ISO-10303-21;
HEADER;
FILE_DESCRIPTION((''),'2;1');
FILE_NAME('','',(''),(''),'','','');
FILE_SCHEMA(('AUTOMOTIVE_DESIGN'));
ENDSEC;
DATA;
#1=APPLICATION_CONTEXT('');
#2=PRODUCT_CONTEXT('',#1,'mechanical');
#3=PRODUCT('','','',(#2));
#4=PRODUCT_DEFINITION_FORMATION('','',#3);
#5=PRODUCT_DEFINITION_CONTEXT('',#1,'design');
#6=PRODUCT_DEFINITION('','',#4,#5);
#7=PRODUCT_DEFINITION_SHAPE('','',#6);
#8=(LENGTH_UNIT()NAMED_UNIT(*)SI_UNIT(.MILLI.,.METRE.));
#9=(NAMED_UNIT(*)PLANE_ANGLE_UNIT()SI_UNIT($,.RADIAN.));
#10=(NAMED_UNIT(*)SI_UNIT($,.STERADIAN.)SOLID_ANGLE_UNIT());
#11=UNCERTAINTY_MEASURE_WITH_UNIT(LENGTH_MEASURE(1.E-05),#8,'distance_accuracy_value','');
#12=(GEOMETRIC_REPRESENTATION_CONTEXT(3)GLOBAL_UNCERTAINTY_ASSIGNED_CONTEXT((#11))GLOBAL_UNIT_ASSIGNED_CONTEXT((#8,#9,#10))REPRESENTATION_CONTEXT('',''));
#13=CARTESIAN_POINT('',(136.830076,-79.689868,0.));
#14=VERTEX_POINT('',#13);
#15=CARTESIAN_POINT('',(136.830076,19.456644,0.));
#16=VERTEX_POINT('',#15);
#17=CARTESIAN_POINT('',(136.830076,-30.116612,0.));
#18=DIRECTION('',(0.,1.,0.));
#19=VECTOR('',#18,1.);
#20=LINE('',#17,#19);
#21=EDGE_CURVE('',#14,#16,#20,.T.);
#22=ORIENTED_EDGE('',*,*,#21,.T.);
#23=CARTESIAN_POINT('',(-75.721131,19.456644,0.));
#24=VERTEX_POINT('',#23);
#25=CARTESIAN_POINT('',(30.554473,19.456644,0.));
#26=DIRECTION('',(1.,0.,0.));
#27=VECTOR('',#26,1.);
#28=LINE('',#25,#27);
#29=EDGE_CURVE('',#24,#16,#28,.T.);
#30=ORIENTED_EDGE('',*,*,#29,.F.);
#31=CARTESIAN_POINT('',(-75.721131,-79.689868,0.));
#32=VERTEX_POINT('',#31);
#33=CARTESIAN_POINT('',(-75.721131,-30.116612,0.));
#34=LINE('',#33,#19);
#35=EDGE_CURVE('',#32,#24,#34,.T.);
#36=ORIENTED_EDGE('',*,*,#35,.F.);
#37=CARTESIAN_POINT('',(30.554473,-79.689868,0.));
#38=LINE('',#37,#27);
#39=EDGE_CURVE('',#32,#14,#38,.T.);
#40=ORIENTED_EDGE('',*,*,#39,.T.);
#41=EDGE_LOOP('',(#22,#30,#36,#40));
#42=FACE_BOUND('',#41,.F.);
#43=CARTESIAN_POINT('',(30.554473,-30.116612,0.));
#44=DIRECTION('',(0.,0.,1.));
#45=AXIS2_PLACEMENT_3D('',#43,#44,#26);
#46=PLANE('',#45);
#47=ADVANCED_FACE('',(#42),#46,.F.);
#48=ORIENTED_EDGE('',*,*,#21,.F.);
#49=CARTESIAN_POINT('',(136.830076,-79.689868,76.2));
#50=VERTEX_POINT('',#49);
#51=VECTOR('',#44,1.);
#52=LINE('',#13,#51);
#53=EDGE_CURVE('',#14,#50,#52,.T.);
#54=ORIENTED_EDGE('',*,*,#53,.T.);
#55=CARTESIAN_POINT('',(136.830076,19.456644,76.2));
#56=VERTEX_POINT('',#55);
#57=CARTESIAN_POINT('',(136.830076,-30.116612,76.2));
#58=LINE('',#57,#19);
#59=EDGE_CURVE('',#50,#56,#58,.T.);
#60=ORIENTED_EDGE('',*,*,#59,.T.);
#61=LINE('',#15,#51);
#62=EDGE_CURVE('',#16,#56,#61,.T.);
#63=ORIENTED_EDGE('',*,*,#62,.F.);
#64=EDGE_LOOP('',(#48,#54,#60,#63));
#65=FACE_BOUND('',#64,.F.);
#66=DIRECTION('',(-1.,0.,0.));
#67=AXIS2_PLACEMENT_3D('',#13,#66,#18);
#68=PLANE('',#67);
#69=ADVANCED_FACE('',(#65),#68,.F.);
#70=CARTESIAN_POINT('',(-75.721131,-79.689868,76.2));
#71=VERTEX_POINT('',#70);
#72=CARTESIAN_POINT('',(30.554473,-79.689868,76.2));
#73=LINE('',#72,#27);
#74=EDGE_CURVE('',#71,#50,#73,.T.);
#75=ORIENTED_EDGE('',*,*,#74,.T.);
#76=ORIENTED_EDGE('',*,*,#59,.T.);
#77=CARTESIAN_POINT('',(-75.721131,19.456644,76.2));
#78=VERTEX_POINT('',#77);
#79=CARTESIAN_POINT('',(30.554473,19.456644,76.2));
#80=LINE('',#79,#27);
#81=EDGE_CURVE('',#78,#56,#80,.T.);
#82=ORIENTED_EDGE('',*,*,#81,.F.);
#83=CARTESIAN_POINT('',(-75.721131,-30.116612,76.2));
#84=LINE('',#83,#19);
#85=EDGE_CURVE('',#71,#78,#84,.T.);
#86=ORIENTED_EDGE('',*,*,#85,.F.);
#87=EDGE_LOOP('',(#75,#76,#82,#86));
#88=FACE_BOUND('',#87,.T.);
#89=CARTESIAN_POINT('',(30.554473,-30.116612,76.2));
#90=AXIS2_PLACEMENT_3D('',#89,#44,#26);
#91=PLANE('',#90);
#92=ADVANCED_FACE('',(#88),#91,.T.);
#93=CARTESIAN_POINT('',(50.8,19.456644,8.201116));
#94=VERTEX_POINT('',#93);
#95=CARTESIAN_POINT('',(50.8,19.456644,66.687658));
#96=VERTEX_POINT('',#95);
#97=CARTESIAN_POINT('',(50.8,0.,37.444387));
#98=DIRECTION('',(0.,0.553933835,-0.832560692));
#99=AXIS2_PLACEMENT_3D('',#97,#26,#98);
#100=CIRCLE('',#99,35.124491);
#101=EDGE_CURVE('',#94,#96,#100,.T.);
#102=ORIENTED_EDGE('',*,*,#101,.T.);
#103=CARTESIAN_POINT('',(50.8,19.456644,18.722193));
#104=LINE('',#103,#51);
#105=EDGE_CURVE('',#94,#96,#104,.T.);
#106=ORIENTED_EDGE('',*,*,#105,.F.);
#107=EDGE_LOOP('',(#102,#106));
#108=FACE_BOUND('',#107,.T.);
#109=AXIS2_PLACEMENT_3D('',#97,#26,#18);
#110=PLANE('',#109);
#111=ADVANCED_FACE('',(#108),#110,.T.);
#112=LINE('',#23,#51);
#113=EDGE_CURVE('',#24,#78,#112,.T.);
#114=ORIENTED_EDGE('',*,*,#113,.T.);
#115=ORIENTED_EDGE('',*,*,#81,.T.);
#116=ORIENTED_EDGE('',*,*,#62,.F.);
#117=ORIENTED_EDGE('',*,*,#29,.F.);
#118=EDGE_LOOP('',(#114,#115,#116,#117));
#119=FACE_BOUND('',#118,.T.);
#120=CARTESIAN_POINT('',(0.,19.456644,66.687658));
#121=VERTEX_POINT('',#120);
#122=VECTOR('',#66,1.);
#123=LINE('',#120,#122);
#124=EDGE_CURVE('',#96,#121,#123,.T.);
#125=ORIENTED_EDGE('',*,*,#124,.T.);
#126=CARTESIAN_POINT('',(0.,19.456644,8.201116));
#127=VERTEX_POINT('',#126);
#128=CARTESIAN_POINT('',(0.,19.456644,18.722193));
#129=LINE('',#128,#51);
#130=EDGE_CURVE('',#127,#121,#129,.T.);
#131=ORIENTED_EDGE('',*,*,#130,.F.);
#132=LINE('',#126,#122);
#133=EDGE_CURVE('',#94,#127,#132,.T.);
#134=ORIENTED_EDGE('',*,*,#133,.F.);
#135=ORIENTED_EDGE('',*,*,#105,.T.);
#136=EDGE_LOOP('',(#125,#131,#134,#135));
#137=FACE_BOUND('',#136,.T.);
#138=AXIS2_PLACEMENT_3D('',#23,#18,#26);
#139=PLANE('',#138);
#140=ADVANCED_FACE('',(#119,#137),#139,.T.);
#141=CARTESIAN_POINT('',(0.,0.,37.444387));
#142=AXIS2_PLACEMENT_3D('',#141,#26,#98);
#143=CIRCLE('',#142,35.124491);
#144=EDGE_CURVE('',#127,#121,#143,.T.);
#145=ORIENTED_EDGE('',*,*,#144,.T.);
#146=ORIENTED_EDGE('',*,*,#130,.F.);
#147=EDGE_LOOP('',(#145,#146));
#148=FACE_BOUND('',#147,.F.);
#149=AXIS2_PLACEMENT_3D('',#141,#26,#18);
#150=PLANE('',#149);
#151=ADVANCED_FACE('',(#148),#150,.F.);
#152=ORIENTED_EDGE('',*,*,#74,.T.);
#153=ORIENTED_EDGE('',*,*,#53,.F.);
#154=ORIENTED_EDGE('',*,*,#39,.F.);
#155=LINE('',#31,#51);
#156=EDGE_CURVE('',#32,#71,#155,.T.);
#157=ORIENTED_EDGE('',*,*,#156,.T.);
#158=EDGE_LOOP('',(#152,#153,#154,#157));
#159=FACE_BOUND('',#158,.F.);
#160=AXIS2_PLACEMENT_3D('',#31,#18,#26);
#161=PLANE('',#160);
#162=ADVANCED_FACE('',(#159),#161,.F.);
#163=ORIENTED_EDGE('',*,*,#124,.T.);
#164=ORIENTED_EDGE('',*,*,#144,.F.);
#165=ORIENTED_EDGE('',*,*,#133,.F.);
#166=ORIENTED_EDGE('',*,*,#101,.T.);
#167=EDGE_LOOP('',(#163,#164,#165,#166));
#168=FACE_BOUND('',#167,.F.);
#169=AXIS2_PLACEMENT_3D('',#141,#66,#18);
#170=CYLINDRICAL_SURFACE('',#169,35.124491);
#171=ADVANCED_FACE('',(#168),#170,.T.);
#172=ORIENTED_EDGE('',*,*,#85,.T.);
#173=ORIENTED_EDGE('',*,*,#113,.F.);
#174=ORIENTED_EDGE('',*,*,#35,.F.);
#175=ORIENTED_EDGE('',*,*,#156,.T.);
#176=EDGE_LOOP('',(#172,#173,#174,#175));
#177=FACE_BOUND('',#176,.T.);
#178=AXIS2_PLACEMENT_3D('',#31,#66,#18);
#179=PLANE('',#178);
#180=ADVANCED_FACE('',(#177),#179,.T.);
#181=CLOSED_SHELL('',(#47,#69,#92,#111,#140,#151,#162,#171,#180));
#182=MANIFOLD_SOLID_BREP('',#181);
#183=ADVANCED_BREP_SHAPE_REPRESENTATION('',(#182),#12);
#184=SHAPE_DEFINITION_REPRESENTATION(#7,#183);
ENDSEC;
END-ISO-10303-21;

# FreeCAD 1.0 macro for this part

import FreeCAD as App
import Part
import Sketcher
Q = App.Units.Quantity

doc = App.newDocument("Part")
body = doc.addObject("PartDesign::Body", "Body")

# Sketch on YZ plane
sketch1 = body.newObject("Sketcher::SketchObject", "Sketch")
sketch1.AttachmentSupport = (doc.getObject("YZ_Plane"), [""])
sketch1.MapMode = "FlatFace"
sketch1.addGeometry(Part.Circle(App.Vector(0, 37, 0), App.Vector(0, 0, 1), 35), False)
sketch1.addConstraint([
    Sketcher.Constraint("PointOnObject", 0, 3, -2),
    Sketcher.Constraint("Diameter", 0, 70.248982),
    Sketcher.Constraint("DistanceY", -1, 1, 0, 3, 37.444387),
])
pad1 = body.newObject("PartDesign::Pad", "Pad")
pad1.Profile = sketch1
pad1.Length = Q("2 in")

# Sketch on XY plane
sketch2 = body.newObject("Sketcher::SketchObject", "Sketch001")
sketch2.AttachmentSupport = (doc.getObject("XY_Plane"), [""])
sketch2.MapMode = "FlatFace"
sketch2.addGeometry([
    Part.LineSegment(App.Vector(-76, 19, 0), App.Vector(-76, -80, 0)),
    Part.LineSegment(App.Vector(-76, -80, 0), App.Vector(137, -80, 0)),
    Part.LineSegment(App.Vector(137, -80, 0), App.Vector(137, 19, 0)),
    Part.LineSegment(App.Vector(137, 19, 0), App.Vector(-76, 19, 0)),
], False)
sketch2.addConstraint([
    Sketcher.Constraint("Coincident", 0, 2, 1, 1),
    Sketcher.Constraint("Coincident", 1, 2, 2, 1),
    Sketcher.Constraint("Coincident", 2, 2, 3, 1),
    Sketcher.Constraint("Coincident", 3, 2, 0, 1),
    Sketcher.Constraint("Vertical", 0),
    Sketcher.Constraint("Horizontal", 1),
    Sketcher.Constraint("Vertical", 2),
    Sketcher.Constraint("Horizontal", 3),
    Sketcher.Constraint("DistanceY", 0, 2, 0, 1, 99.146512),
    Sketcher.Constraint("DistanceX", 1, 1, 1, 2, 212.551207),
    Sketcher.Constraint("DistanceX", 0, 2, -1, 1, 75.721131),
    Sketcher.Constraint("DistanceY", 0, 2, -1, 1, 79.689868),
])
pad2 = body.newObject("PartDesign::Pad", "Pad001")
pad2.Profile = sketch2
pad2.Length = Q("3 in")

doc.recompute()
